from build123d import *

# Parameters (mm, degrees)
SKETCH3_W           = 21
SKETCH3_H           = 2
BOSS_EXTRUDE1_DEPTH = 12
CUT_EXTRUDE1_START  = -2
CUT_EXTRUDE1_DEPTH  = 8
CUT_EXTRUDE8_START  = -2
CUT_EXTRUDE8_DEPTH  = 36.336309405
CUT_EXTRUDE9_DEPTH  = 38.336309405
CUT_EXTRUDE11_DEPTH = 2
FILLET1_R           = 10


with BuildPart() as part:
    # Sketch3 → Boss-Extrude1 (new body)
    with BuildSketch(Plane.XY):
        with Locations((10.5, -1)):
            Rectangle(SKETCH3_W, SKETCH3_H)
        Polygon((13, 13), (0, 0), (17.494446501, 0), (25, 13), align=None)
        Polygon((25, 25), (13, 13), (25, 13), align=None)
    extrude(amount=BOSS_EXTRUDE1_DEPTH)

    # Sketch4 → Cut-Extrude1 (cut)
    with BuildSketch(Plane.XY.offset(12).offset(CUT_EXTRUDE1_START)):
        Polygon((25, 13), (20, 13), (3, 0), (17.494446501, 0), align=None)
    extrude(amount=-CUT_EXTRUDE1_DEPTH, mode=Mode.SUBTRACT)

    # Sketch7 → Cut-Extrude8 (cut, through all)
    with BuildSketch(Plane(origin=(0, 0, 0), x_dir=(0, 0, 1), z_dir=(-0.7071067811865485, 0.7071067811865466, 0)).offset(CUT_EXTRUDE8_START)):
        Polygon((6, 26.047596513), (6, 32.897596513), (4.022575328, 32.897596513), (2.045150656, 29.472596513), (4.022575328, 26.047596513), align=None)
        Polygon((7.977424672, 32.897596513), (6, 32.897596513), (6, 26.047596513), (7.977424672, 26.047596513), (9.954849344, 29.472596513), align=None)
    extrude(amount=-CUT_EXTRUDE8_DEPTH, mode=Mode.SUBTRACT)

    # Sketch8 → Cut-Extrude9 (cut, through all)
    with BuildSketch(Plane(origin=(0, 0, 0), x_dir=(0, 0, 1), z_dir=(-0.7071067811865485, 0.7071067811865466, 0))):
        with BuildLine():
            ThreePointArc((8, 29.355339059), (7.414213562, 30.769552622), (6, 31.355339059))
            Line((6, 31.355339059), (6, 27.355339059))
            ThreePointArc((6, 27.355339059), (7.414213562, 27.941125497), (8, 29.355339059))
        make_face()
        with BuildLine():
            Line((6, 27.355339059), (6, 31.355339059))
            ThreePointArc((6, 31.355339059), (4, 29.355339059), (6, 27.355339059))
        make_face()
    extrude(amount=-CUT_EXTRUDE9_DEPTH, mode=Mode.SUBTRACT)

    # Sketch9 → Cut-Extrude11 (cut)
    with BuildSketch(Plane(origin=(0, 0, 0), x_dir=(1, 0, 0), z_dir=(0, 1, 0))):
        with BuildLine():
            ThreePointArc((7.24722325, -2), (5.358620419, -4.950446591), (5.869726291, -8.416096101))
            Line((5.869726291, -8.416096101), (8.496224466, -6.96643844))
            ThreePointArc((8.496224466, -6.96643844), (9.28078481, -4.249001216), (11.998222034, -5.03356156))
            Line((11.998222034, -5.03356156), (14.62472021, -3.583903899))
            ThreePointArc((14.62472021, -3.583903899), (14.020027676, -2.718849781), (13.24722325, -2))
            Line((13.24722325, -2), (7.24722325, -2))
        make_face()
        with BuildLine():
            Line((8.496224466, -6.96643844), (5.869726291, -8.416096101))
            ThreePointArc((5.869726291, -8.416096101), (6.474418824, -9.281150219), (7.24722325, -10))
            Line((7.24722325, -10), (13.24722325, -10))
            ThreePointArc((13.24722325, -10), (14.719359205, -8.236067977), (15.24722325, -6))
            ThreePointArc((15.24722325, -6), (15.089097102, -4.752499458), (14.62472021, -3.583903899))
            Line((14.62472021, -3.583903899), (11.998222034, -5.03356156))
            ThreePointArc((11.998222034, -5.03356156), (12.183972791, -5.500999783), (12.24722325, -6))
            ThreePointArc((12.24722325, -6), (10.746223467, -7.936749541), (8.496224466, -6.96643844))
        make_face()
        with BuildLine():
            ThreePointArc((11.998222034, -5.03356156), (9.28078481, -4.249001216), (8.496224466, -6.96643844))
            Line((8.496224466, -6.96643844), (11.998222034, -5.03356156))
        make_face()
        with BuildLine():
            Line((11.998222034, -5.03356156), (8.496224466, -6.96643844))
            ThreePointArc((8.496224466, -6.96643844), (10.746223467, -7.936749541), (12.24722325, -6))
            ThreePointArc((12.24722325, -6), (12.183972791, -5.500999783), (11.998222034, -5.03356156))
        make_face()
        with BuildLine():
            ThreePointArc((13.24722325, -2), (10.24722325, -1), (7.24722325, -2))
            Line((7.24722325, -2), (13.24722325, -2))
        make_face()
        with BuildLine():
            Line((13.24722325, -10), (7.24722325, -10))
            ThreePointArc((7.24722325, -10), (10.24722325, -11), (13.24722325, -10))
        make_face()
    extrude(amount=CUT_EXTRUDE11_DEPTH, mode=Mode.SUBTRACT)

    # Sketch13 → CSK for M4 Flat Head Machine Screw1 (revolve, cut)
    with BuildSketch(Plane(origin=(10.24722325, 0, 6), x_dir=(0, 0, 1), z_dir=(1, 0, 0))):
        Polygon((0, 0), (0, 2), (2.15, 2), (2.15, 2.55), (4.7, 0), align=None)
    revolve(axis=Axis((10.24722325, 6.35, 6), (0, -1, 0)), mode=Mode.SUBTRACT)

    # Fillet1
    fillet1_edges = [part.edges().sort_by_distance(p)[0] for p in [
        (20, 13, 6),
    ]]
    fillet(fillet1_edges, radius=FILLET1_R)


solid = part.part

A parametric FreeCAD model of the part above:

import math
import FreeCAD as App
import Part
import Sketcher
Q = App.Units.Quantity


def edges_at(feature, points):
    """Names of the edges that pass closest to the given points."""
    edges = feature.Shape.Edges
    near = lambda p: min(range(len(edges)), key=lambda i: edges[i].distToShape(Part.Vertex(*p))[0])
    return sorted({f"Edge{near(p) + 1}" for p in points})

doc = App.newDocument("Part")
body = doc.addObject("PartDesign::Body", "Body")

# Sketch on XY plane
sketch1 = body.newObject("Sketcher::SketchObject", "Sketch")
sketch1.AttachmentSupport = (doc.getObject("XY_Plane"), [""])
sketch1.MapMode = "FlatFace"
sketch1.addGeometry([
    Part.LineSegment(App.Vector(0, 0, 0), App.Vector(0, -2, 0)),  # 0
    Part.LineSegment(App.Vector(0, -2, 0), App.Vector(21, -2, 0)),  # 1
    Part.LineSegment(App.Vector(21, -2, 0), App.Vector(21, 0, 0)),  # 2
    Part.LineSegment(App.Vector(21, 0, 0), App.Vector(17.5, 0, 0)),  # 3
    Part.LineSegment(App.Vector(17.5, 0, 0), App.Vector(25, 13, 0)),  # 4
    Part.LineSegment(App.Vector(25, 13, 0), App.Vector(25, 25, 0)),  # 5
    Part.LineSegment(App.Vector(25, 25, 0), App.Vector(0, 0, 0)),  # 6
], False)
sketch1.addConstraint([
    Sketcher.Constraint("Coincident", 0, 2, 1, 1),
    Sketcher.Constraint("Coincident", 1, 2, 2, 1),
    Sketcher.Constraint("Coincident", 2, 2, 3, 1),
    Sketcher.Constraint("Coincident", 3, 2, 4, 1),
    Sketcher.Constraint("Coincident", 4, 2, 5, 1),
    Sketcher.Constraint("Coincident", 5, 2, 6, 1),
    Sketcher.Constraint("Coincident", 6, 2, 0, 1),
    Sketcher.Constraint("Vertical", 0),
    Sketcher.Constraint("Horizontal", 1),
    Sketcher.Constraint("Vertical", 2),
    Sketcher.Constraint("Horizontal", 3),
    Sketcher.Constraint("Vertical", 5),
    Sketcher.Constraint("Coincident", 6, 2, -1, 1),
    Sketcher.Constraint("PointOnObject", 2, 2, -1),
    Sketcher.Constraint("DistanceX", 1, 1, 1, 2, Q("21 mm")),
    Sketcher.Constraint("DistanceY", 0, 2, 0, 1, Q("2 mm")),
    Sketcher.Constraint("DistanceY", 5, 1, 5, 2, Q("12 mm")),
    Sketcher.Constraint("Angle", 4, Q("60 deg")),
    Sketcher.Constraint("Angle", 6, Q("-135 deg")),
    Sketcher.Constraint("DistanceX", -1, 1, 4, 2, Q("25 mm")),
])
pad1 = body.newObject("PartDesign::Pad", "Pad")
pad1.Profile = sketch1
pad1.Length = 12

# Sketch on XY plane
sketch2 = body.newObject("Sketcher::SketchObject", "Sketch001")
sketch2.AttachmentSupport = (doc.getObject("XY_Plane"), [""])
sketch2.MapMode = "FlatFace"
sketch2.AttachmentOffset = App.Placement(App.Vector(0, 0, 10), App.Rotation())
sketch2.addGeometry([
    Part.LineSegment(App.Vector(25, 13, 0), App.Vector(20, 13, 0)),
    Part.LineSegment(App.Vector(20, 13, 0), App.Vector(3, 0, 0)),
    Part.LineSegment(App.Vector(3, 0, 0), App.Vector(17, 0, 0)),
    Part.LineSegment(App.Vector(17, 0, 0), App.Vector(25, 13, 0)),
], False)
sketch2.addConstraint([
    Sketcher.Constraint("Coincident", 0, 2, 1, 1),
    Sketcher.Constraint("Coincident", 1, 2, 2, 1),
    Sketcher.Constraint("Coincident", 2, 2, 3, 1),
    Sketcher.Constraint("Coincident", 3, 2, 0, 1),
    Sketcher.Constraint("Horizontal", 0),
    Sketcher.Constraint("Horizontal", 2),
    Sketcher.Constraint("PointOnObject", 1, 2, -1),
    Sketcher.Constraint("DistanceX", 0, 2, 0, 1, Q("5 mm")),
    Sketcher.Constraint("Angle", 3, Q("60 deg")),
    Sketcher.Constraint("DistanceX", -1, 1, 0, 2, Q("20 mm")),
    Sketcher.Constraint("DistanceY", -1, 1, 0, 2, Q("13 mm")),
    Sketcher.Constraint("DistanceX", -1, 1, 1, 2, Q("3 mm")),
])
pocket1 = body.newObject("PartDesign::Pocket", "Pocket")
pocket1.Profile = sketch2
pocket1.Length = 8

# Sketch on an angled plane
sketch3 = body.newObject("Sketcher::SketchObject", "Sketch002")
sketch3.Placement = App.Placement(App.Vector(1.414214, -1.414214, 0), App.Rotation(App.Vector(0, 0, 1), App.Vector(0.707106781, 0.707106781, 0), App.Vector(-0.707106781, 0.707106781, 0), "ZXY"))
sketch3.addGeometry([
    Part.LineSegment(App.Vector(4, 32.9, 0), App.Vector(2, 29.5, 0)),  # 0
    Part.LineSegment(App.Vector(2, 29.5, 0), App.Vector(4, 26, 0)),  # 1
    Part.LineSegment(App.Vector(4, 26, 0), App.Vector(8, 26, 0)),  # 2
    Part.LineSegment(App.Vector(8, 26, 0), App.Vector(10, 29.5, 0)),  # 3
    Part.LineSegment(App.Vector(10, 29.5, 0), App.Vector(8, 32.9, 0)),  # 4
    Part.LineSegment(App.Vector(8, 32.9, 0), App.Vector(4, 32.9, 0)),  # 5
], False)
sketch3.addConstraint([
    Sketcher.Constraint("Coincident", 0, 2, 1, 1),
    Sketcher.Constraint("Coincident", 1, 2, 2, 1),
    Sketcher.Constraint("Coincident", 2, 2, 3, 1),
    Sketcher.Constraint("Coincident", 3, 2, 4, 1),
    Sketcher.Constraint("Coincident", 4, 2, 5, 1),
    Sketcher.Constraint("Coincident", 5, 2, 0, 1),
    Sketcher.Constraint("Horizontal", 2),
    Sketcher.Constraint("Horizontal", 5),
    Sketcher.Constraint("Parallel", 0, 3),
    Sketcher.Constraint("Parallel", 1, 4),
    Sketcher.Constraint("Horizontal", 0, 2, 3, 2),
    Sketcher.Constraint("Vertical", 2, 2, 4, 2),
    Sketcher.Constraint("Vertical", 1, 2, 5, 2),
    Sketcher.Constraint("Angle", 0, Q("-120 deg")),
    Sketcher.Constraint("DistanceY", 2, 2, 4, 2, Q("6.85 mm")),
    Sketcher.Constraint("DistanceX", 2, 1, 2, 2, Q("3.954849 mm")),
    Sketcher.Constraint("DistanceX", -1, 1, 0, 2, Q("2.045151 mm")),
    Sketcher.Constraint("DistanceY", -1, 1, 0, 2, Q("29.472596 mm")),
])
pocket2 = body.newObject("PartDesign::Pocket", "Pocket001")
pocket2.Profile = sketch3
pocket2.Type = "ThroughAll"

# Sketch on an angled plane
sketch4 = body.newObject("Sketcher::SketchObject", "Sketch003")
sketch4.Placement = App.Placement(App.Vector(0, 0, 0), App.Rotation(App.Vector(0, 0, 1), App.Vector(0.707106781, 0.707106781, 0), App.Vector(-0.707106781, 0.707106781, 0), "ZXY"))
sketch4.addGeometry([
    Part.ArcOfCircle(Part.Circle(App.Vector(6, 29.4, 0), App.Vector(0, 0, 1), 2), math.radians(0), math.radians(90)),
    Part.ArcOfCircle(Part.Circle(App.Vector(6, 29.4, 0), App.Vector(0, 0, 1), 2), math.radians(90), math.radians(270)),
    Part.ArcOfCircle(Part.Circle(App.Vector(6, 29.4, 0), App.Vector(0, 0, 1), 2), math.radians(-90), math.radians(0)),
], False)
sketch4.addConstraint([
    Sketcher.Constraint("Tangent", 0, 2, 1, 1),
    Sketcher.Constraint("Tangent", 1, 2, 2, 1),
    Sketcher.Constraint("Tangent", 2, 2, 0, 1),
    Sketcher.Constraint("Horizontal", 1, 3, 2, 2),
    Sketcher.Constraint("Vertical", 2, 3, 0, 2),
    Sketcher.Constraint("Vertical", 0, 2, 1, 2),
    Sketcher.Constraint("Radius", 0, Q("2 mm")),
    Sketcher.Constraint("DistanceX", -1, 1, 0, 3, Q("6 mm")),
    Sketcher.Constraint("DistanceY", -1, 1, 0, 3, Q("29.355339 mm")),
])
pocket3 = body.newObject("PartDesign::Pocket", "Pocket002")
pocket3.Profile = sketch4
pocket3.Type = "ThroughAll"

# Sketch on XZ plane
sketch5 = body.newObject("Sketcher::SketchObject", "Sketch004")
sketch5.AttachmentSupport = (doc.getObject("XZ_Plane"), [""])
sketch5.MapMode = "FlatFace"
sketch5.addGeometry([
    Part.ArcOfCircle(Part.Circle(App.Vector(10.2, 6, 0), App.Vector(0, 0, 1), 5), math.radians(151), math.radians(233)),  # 0
    Part.ArcOfCircle(Part.Circle(App.Vector(10.2, 6, 0), App.Vector(0, 0, 1), 5), math.radians(127), math.radians(151)),  # 1
    Part.ArcOfCircle(Part.Circle(App.Vector(10.2, 6, 0), App.Vector(0, 0, 1), 5), math.radians(53), math.radians(127)),  # 2
    Part.ArcOfCircle(Part.Circle(App.Vector(10.2, 6, 0), App.Vector(0, 0, 1), 5), math.radians(0), math.radians(53)),  # 3
    Part.ArcOfCircle(Part.Circle(App.Vector(10.2, 6, 0), App.Vector(0, 0, 1), 5), math.radians(-29), math.radians(0)),  # 4
    Part.ArcOfCircle(Part.Circle(App.Vector(10.2, 6, 0), App.Vector(0, 0, 1), 5), math.radians(-53), math.radians(-29)),  # 5
    Part.ArcOfCircle(Part.Circle(App.Vector(10.2, 6, 0), App.Vector(0, 0, 1), 5), math.radians(-127), math.radians(-53)),  # 6
], False)
sketch5.addConstraint([
    Sketcher.Constraint("Tangent", 0, 1, 1, 2),
    Sketcher.Constraint("Tangent", 1, 1, 2, 2),
    Sketcher.Constraint("Tangent", 2, 1, 3, 2),
    Sketcher.Constraint("Tangent", 3, 1, 4, 2),
    Sketcher.Constraint("Tangent", 4, 1, 5, 2),
    Sketcher.Constraint("Tangent", 5, 1, 6, 2),
    Sketcher.Constraint("Tangent", 6, 1, 0, 2),
    Sketcher.Constraint("Coincident", 2, 3, 0, 3),
    Sketcher.Constraint("Coincident", 4, 3, 0, 3),
    Sketcher.Constraint("Horizontal", 1, 1, 2, 1),
    Sketcher.Constraint("Horizontal", 6, 3, 3, 1),
    Sketcher.Constraint("Horizontal", 5, 1, 6, 1),
    Sketcher.Constraint("Vertical", 2, 1, 5, 1),
    Sketcher.Constraint("Radius", 0, Q("5 mm")),
    Sketcher.Constraint("DistanceY", -1, 1, 0, 3, Q("6 mm")),
    Sketcher.Constraint("DistanceY", -1, 1, 1, 1, Q("10 mm")),
    Sketcher.Constraint("DistanceX", -1, 1, 4, 1, Q("14.62472 mm")),
    Sketcher.Constraint("DistanceX", -1, 1, 0, 3, Q("10.247223 mm")),
    Sketcher.Constraint("DistanceX", -1, 1, 0, 1, Q("5.869726 mm")),
])
pocket4 = body.newObject("PartDesign::Pocket", "Pocket003")
pocket4.Profile = sketch5
pocket4.Length = 2

# Sketch on YZ plane
sketch6 = body.newObject("Sketcher::SketchObject", "Sketch005")
sketch6.AttachmentSupport = (doc.getObject("YZ_Plane"), [""])
sketch6.MapMode = "FlatFace"
sketch6.AttachmentOffset = App.Placement(App.Vector(0, 0, 10.247223), App.Rotation())
sketch6.addGeometry([
    Part.LineSegment(App.Vector(-2, 6, 0), App.Vector(0, 6, 0)),  # 0
    Part.LineSegment(App.Vector(0, 6, 0), App.Vector(0, 10.7, 0)),  # 1
    Part.LineSegment(App.Vector(0, 10.7, 0), App.Vector(-2.5, 8.2, 0)),  # 2
    Part.LineSegment(App.Vector(-2.5, 8.2, 0), App.Vector(-2, 8.2, 0)),  # 3
    Part.LineSegment(App.Vector(-2, 8.2, 0), App.Vector(-2, 6, 0)),  # 4
], False)
sketch6.addGeometry(Part.LineSegment(App.Vector(0, 6, 0), App.Vector(-2.5, 6, 0)), True)  # axis
sketch6.addConstraint([
    Sketcher.Constraint("Coincident", 0, 2, 1, 1),
    Sketcher.Constraint("Coincident", 1, 2, 2, 1),
    Sketcher.Constraint("Coincident", 2, 2, 3, 1),
    Sketcher.Constraint("Coincident", 3, 2, 4, 1),
    Sketcher.Constraint("Coincident", 4, 2, 0, 1),
    Sketcher.Constraint("Horizontal", 0),
    Sketcher.Constraint("Vertical", 1),
    Sketcher.Constraint("Horizontal", 3),
    Sketcher.Constraint("Vertical", 4),
    Sketcher.Constraint("Horizontal", 5),
    Sketcher.Constraint("Coincident", 5, 1, 0, 2),
    Sketcher.Constraint("PointOnObject", 0, 2, -2),
    Sketcher.Constraint("Vertical", 2, 2, 5, 2),
    Sketcher.Constraint("DistanceX", 0, 1, 0, 2, Q("2 mm")),
    Sketcher.Constraint("Angle", 2, Q("-135 deg")),
    Sketcher.Constraint("DistanceY", 1, 1, 1, 2, Q("4.7 mm")),
    Sketcher.Constraint("DistanceY", -1, 1, 0, 2, Q("6 mm")),
    Sketcher.Constraint("DistanceX", 3, 1, 3, 2, Q("0.55 mm")),
])
groove = body.newObject("PartDesign::Groove", "Groove")
groove.Profile = sketch6
groove.ReferenceAxis = (sketch6, ["Axis0"])
groove.Angle = 360
doc.recompute()

fillet = body.newObject("PartDesign::Fillet", "Fillet")
fillet.Base = (groove, edges_at(groove, [(20, 13, 6)]))
fillet.Radius = 10

doc.recompute()
